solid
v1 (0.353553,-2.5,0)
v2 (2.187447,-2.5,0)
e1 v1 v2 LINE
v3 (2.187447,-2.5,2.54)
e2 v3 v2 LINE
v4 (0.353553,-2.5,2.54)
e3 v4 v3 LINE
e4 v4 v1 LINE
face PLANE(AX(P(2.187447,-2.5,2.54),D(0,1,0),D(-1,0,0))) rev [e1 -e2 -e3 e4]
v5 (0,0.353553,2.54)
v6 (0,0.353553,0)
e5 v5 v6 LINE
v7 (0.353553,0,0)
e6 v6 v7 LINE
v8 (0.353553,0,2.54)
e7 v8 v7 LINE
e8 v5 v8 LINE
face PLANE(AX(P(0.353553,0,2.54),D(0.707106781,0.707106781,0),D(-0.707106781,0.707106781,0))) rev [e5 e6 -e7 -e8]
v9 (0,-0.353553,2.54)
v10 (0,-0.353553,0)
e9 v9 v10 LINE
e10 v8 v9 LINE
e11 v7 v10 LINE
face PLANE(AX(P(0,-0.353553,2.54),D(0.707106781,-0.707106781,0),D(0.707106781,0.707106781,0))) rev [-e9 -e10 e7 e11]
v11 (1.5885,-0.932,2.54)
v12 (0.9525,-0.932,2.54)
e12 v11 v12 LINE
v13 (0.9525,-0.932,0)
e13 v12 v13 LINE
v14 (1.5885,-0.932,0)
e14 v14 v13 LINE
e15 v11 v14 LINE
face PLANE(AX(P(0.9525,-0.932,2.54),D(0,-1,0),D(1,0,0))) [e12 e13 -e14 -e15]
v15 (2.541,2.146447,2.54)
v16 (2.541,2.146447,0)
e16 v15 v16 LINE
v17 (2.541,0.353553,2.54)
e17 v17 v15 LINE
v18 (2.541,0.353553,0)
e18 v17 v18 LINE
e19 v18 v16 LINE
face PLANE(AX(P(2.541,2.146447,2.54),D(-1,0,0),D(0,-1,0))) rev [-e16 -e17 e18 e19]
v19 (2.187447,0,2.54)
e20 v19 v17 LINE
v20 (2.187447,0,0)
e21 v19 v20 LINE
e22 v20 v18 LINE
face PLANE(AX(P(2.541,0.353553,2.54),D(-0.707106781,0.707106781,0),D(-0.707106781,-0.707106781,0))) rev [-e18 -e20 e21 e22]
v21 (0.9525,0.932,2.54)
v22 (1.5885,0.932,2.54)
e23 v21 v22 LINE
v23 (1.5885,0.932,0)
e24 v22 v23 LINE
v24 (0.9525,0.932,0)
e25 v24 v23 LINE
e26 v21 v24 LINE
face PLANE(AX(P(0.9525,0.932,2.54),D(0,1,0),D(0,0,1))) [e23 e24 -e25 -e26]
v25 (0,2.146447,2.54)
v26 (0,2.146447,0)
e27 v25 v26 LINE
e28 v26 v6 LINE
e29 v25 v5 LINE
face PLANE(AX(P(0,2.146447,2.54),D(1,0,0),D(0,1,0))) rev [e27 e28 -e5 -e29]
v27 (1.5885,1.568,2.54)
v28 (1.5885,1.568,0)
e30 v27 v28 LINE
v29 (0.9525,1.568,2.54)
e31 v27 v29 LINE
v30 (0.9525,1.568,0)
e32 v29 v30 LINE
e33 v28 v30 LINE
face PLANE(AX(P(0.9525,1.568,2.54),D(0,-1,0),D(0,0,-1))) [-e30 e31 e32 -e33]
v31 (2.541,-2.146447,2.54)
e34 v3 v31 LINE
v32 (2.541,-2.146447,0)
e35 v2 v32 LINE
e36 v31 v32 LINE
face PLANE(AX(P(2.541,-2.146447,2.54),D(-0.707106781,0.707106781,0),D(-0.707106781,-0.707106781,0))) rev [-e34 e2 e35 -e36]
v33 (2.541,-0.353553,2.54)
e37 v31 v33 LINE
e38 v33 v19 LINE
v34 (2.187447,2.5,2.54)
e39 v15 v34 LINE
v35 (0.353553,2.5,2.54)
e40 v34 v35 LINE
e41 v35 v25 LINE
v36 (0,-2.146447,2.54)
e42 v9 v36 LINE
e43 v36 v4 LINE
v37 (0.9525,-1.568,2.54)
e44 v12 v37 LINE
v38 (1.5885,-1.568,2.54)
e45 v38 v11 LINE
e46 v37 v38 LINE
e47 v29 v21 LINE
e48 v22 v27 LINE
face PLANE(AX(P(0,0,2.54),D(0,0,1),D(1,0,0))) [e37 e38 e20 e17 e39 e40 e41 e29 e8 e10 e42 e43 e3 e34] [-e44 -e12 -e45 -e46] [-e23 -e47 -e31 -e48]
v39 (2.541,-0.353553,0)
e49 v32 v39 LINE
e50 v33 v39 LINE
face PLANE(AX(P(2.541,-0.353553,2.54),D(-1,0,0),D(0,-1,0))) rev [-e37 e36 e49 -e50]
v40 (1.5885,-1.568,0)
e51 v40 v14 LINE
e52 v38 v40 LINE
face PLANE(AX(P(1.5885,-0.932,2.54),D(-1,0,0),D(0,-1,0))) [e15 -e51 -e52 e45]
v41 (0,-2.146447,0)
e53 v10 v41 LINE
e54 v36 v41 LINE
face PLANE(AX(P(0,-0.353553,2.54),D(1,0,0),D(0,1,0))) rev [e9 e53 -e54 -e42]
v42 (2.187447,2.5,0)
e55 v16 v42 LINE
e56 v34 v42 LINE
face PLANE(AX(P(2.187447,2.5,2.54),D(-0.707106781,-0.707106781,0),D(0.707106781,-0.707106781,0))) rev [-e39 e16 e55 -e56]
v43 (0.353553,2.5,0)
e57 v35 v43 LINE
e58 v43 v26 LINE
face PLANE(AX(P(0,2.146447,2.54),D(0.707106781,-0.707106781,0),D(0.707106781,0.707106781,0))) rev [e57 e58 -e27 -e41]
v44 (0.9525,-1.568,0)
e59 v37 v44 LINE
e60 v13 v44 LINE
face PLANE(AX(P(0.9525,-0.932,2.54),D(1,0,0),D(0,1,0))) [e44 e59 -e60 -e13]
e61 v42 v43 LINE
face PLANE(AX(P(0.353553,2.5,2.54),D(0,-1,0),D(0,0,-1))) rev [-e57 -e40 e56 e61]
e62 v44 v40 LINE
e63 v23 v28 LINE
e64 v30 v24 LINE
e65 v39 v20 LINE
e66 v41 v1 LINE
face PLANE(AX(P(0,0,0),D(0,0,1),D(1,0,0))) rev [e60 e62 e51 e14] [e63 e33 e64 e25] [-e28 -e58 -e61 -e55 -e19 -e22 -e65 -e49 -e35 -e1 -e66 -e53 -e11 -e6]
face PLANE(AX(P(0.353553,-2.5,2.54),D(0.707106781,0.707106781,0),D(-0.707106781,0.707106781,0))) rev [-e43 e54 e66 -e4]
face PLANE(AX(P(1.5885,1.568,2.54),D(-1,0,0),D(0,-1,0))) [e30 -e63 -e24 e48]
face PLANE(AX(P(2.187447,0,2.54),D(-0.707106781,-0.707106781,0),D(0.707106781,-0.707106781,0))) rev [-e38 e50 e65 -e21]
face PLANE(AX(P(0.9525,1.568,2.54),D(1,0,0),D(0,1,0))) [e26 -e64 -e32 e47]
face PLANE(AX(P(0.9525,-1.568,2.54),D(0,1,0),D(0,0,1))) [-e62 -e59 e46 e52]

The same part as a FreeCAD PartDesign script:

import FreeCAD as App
import Part
import Sketcher
from FreeCAD import Vector
Q = App.Units.Quantity

doc = App.newDocument("Part")
params = doc.addObject("Spreadsheet::Sheet", "Params")
for row, (alias, value) in enumerate([
    ("sketch1_length", "0.5 mm"),
    ("pad1_length", "2.54 mm"),
], start=1):
    params.set(f"A{row}", alias)
    params.set(f"B{row}", "=" + value)
    params.setAlias(f"B{row}", alias)

body = doc.addObject("PartDesign::Body", "Body")

sketch1 = body.newObject("Sketcher::SketchObject", "Sketch")
sketch1.AttachmentSupport = (doc.getObject("XY_Plane"), [""])
sketch1.MapMode = "FlatFace"
sketch1.addGeometry(Part.LineSegment(Vector(0, 2.1, 0), Vector(0, 0.4, 0)), False)
sketch1.addGeometry(Part.LineSegment(Vector(0, 0.4, 0), Vector(0.4, 0, 0)), False)
sketch1.addGeometry(Part.LineSegment(Vector(0.4, 0, 0), Vector(0, -0.4, 0)), False)
sketch1.addGeometry(Part.LineSegment(Vector(0, -0.4, 0), Vector(0, -2.1, 0)), False)
sketch1.addGeometry(Part.LineSegment(Vector(0, -2.1, 0), Vector(0.4, -2.5, 0)), False)
sketch1.addGeometry(Part.LineSegment(Vector(0.4, -2.5, 0), Vector(2.2, -2.5, 0)), False)
sketch1.addGeometry(Part.LineSegment(Vector(2.2, -2.5, 0), Vector(2.5, -2.1, 0)), False)
sketch1.addGeometry(Part.LineSegment(Vector(2.5, -2.1, 0), Vector(2.5, -0.4, 0)), False)
sketch1.addGeometry(Part.LineSegment(Vector(2.5, -0.4, 0), Vector(2.2, 0, 0)), False)
sketch1.addGeometry(Part.LineSegment(Vector(2.2, 0, 0), Vector(2.5, 0.4, 0)), False)
sketch1.addGeometry(Part.LineSegment(Vector(2.5, 0.4, 0), Vector(2.5, 2.1, 0)), False)
sketch1.addGeometry(Part.LineSegment(Vector(2.5, 2.1, 0), Vector(2.2, 2.5, 0)), False)
sketch1.addGeometry(Part.LineSegment(Vector(2.2, 2.5, 0), Vector(0.4, 2.5, 0)), False)
sketch1.addGeometry(Part.LineSegment(Vector(0.4, 2.5, 0), Vector(0, 2.1, 0)), False)
sketch1.addGeometry(Part.LineSegment(Vector(1.6, -1.6, 0), Vector(1, -1.6, 0)), False)
sketch1.addGeometry(Part.LineSegment(Vector(1, -1.6, 0), Vector(1, -0.9, 0)), False)
sketch1.addGeometry(Part.LineSegment(Vector(1, -0.9, 0), Vector(1.6, -0.9, 0)), False)
sketch1.addGeometry(Part.LineSegment(Vector(1.6, -0.9, 0), Vector(1.6, -1.6, 0)), False)
sketch1.addGeometry(Part.LineSegment(Vector(1.6, 0.9, 0), Vector(1, 0.9, 0)), False)
sketch1.addGeometry(Part.LineSegment(Vector(1, 0.9, 0), Vector(1, 1.6, 0)), False)
sketch1.addGeometry(Part.LineSegment(Vector(1, 1.6, 0), Vector(1.6, 1.6, 0)), False)
sketch1.addGeometry(Part.LineSegment(Vector(1.6, 1.6, 0), Vector(1.6, 0.9, 0)), False)
sketch1.addConstraint(Sketcher.Constraint("Coincident", 0, 2, 1, 1))
sketch1.addConstraint(Sketcher.Constraint("Coincident", 1, 2, 2, 1))
sketch1.addConstraint(Sketcher.Constraint("Coincident", 2, 2, 3, 1))
sketch1.addConstraint(Sketcher.Constraint("Coincident", 3, 2, 4, 1))
sketch1.addConstraint(Sketcher.Constraint("Coincident", 4, 2, 5, 1))
sketch1.addConstraint(Sketcher.Constraint("Coincident", 5, 2, 6, 1))
sketch1.addConstraint(Sketcher.Constraint("Coincident", 6, 2, 7, 1))
sketch1.addConstraint(Sketcher.Constraint("Coincident", 7, 2, 8, 1))
sketch1.addConstraint(Sketcher.Constraint("Coincident", 8, 2, 9, 1))
sketch1.addConstraint(Sketcher.Constraint("Coincident", 9, 2, 10, 1))
sketch1.addConstraint(Sketcher.Constraint("Coincident", 10, 2, 11, 1))
sketch1.addConstraint(Sketcher.Constraint("Coincident", 11, 2, 12, 1))
sketch1.addConstraint(Sketcher.Constraint("Coincident", 12, 2, 13, 1))
sketch1.addConstraint(Sketcher.Constraint("Coincident", 13, 2, 0, 1))
sketch1.addConstraint(Sketcher.Constraint("Coincident", 14, 2, 15, 1))
sketch1.addConstraint(Sketcher.Constraint("Coincident", 15, 2, 16, 1))
sketch1.addConstraint(Sketcher.Constraint("Coincident", 16, 2, 17, 1))
sketch1.addConstraint(Sketcher.Constraint("Coincident", 17, 2, 14, 1))
sketch1.addConstraint(Sketcher.Constraint("Coincident", 18, 2, 19, 1))
sketch1.addConstraint(Sketcher.Constraint("Coincident", 19, 2, 20, 1))
sketch1.addConstraint(Sketcher.Constraint("Coincident", 20, 2, 21, 1))
sketch1.addConstraint(Sketcher.Constraint("Coincident", 21, 2, 18, 1))
sketch1.addConstraint(Sketcher.Constraint("Vertical", 0))
sketch1.addConstraint(Sketcher.Constraint("Vertical", 3))
sketch1.addConstraint(Sketcher.Constraint("Horizontal", 5))
sketch1.addConstraint(Sketcher.Constraint("Vertical", 7))
sketch1.addConstraint(Sketcher.Constraint("Vertical", 10))
sketch1.addConstraint(Sketcher.Constraint("Horizontal", 12))
sketch1.addConstraint(Sketcher.Constraint("Horizontal", 14))
sketch1.addConstraint(Sketcher.Constraint("Vertical", 15))
sketch1.addConstraint(Sketcher.Constraint("Horizontal", 16))
sketch1.addConstraint(Sketcher.Constraint("Vertical", 17))
sketch1.addConstraint(Sketcher.Constraint("Horizontal", 18))
sketch1.addConstraint(Sketcher.Constraint("Vertical", 19))
sketch1.addConstraint(Sketcher.Constraint("Horizontal", 20))
sketch1.addConstraint(Sketcher.Constraint("Vertical", 21))
sketch1.addConstraint(Sketcher.Constraint("Symmetric", 0, 2, 2, 2, -1, 1))
sketch1.addConstraint(Sketcher.Constraint("Symmetric", 7, 2, 9, 2, -1))
sketch1.addConstraint(Sketcher.Constraint("Symmetric", 5, 2, 11, 2, -1))
sketch1.addConstraint(Sketcher.Constraint("Symmetric", 3, 2, 13, 2, -1))
sketch1.addConstraint(Sketcher.Constraint("Symmetric", 15, 2, 18, 2, -1))
sketch1.addConstraint(Sketcher.Constraint("Symmetric", 17, 2, 20, 2, -1))
sketch1.addConstraint(Sketcher.Constraint("PointOnObject", 1, 2, -1))
sketch1.addConstraint(Sketcher.Constraint("PointOnObject", 8, 2, -1))
sketch1.addConstraint(Sketcher.Constraint("Perpendicular", 1, 2))
sketch1.addConstraint(Sketcher.Constraint("Perpendicular", 2, 4))
sketch1.addConstraint(Sketcher.Constraint("Perpendicular", 4, 6))
sketch1.addConstraint(Sketcher.Constraint("Perpendicular", 6, 8))
sketch1.addConstraint(Sketcher.Constraint("Perpendicular", 9, 11))
sketch1.addConstraint(Sketcher.Constraint("Perpendicular", 11, 13))
sketch1.addConstraint(Sketcher.Constraint("Horizontal", 3, 2, 6, 2))
sketch1.addConstraint(Sketcher.Constraint("Horizontal", 2, 2, 7, 2))
sketch1.addConstraint(Sketcher.Constraint("Vertical", 1, 2, 4, 2))
sketch1.addConstraint(Sketcher.Constraint("Equal", 20, 15))
sketch1.addConstraint(Sketcher.Constraint("Distance", 1, Q("0.5 mm")))
sketch1.addConstraint(Sketcher.Constraint("DistanceY", 4, 2, -1, 1, Q("2.5 mm")))
sketch1.addConstraint(Sketcher.Constraint("DistanceX", 14, 2, 14, 1, Q("0.636 mm")))
sketch1.addConstraint(Sketcher.Constraint("DistanceX", -1, 1, 6, 2, Q("2.541 mm")))
sketch1.addConstraint(Sketcher.Constraint("DistanceY", 14, 2, -1, 1, Q("1.568 mm")))
sketch1.addConstraint(Sketcher.Constraint("DistanceX", -1, 1, 14, 2, Q("0.9525 mm")))
sketch1.setExpression("Constraints[54]", "Params.sketch1_length")
pad1 = body.newObject("PartDesign::Pad", "Pad")
pad1.Profile = sketch1
pad1.setExpression("Length", "Params.pad1_length")

doc.recompute()
